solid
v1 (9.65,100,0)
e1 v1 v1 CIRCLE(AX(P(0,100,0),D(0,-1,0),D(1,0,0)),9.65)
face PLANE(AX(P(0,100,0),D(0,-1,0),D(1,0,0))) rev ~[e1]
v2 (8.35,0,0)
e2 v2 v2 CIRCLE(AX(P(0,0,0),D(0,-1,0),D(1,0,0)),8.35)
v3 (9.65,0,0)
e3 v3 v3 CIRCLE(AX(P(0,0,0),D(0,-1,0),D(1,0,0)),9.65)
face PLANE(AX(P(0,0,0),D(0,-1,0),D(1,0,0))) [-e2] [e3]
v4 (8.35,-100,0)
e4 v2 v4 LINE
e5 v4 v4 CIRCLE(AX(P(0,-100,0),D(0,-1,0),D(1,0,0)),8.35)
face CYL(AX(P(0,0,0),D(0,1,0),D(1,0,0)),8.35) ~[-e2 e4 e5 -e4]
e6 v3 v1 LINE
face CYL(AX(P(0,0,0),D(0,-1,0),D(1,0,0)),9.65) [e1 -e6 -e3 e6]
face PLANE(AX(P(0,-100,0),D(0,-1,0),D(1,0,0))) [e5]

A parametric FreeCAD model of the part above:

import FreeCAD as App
import Part
import Sketcher

doc = App.newDocument("Part")
body = doc.addObject("PartDesign::Body", "Body")

sketch1 = body.newObject("Sketcher::SketchObject", "Sketch")
sketch1.AttachmentSupport = (doc.getObject("XZ_Plane"), [""])
sketch1.MapMode = "FlatFace"
sketch1.addGeometry(Part.Circle(App.Vector(0, 0, 0), App.Vector(0, 0, 1), 10), False)
sketch1.addConstraint([
    Sketcher.Constraint("Coincident", 0, 3, -1, 1),
    Sketcher.Constraint("Diameter", 0, 19.3),
])
pad1 = body.newObject("PartDesign::Pad", "Pad")
pad1.Profile = sketch1
pad1.Length = 100
pad1.Reversed = True

sketch2 = body.newObject("Sketcher::SketchObject", "Sketch001")
sketch2.AttachmentSupport = (doc.getObject("XZ_Plane"), [""])
sketch2.MapMode = "FlatFace"
sketch2.addGeometry(Part.Circle(App.Vector(0, 0, 0), App.Vector(0, 0, 1), 8), False)
sketch2.addConstraint([
    Sketcher.Constraint("Coincident", 0, 3, -1, 1),
    Sketcher.Constraint("Diameter", 0, 16.7),
])
pad2 = body.newObject("PartDesign::Pad", "Pad001")
pad2.Profile = sketch2
pad2.Length = 100

doc.recompute()
